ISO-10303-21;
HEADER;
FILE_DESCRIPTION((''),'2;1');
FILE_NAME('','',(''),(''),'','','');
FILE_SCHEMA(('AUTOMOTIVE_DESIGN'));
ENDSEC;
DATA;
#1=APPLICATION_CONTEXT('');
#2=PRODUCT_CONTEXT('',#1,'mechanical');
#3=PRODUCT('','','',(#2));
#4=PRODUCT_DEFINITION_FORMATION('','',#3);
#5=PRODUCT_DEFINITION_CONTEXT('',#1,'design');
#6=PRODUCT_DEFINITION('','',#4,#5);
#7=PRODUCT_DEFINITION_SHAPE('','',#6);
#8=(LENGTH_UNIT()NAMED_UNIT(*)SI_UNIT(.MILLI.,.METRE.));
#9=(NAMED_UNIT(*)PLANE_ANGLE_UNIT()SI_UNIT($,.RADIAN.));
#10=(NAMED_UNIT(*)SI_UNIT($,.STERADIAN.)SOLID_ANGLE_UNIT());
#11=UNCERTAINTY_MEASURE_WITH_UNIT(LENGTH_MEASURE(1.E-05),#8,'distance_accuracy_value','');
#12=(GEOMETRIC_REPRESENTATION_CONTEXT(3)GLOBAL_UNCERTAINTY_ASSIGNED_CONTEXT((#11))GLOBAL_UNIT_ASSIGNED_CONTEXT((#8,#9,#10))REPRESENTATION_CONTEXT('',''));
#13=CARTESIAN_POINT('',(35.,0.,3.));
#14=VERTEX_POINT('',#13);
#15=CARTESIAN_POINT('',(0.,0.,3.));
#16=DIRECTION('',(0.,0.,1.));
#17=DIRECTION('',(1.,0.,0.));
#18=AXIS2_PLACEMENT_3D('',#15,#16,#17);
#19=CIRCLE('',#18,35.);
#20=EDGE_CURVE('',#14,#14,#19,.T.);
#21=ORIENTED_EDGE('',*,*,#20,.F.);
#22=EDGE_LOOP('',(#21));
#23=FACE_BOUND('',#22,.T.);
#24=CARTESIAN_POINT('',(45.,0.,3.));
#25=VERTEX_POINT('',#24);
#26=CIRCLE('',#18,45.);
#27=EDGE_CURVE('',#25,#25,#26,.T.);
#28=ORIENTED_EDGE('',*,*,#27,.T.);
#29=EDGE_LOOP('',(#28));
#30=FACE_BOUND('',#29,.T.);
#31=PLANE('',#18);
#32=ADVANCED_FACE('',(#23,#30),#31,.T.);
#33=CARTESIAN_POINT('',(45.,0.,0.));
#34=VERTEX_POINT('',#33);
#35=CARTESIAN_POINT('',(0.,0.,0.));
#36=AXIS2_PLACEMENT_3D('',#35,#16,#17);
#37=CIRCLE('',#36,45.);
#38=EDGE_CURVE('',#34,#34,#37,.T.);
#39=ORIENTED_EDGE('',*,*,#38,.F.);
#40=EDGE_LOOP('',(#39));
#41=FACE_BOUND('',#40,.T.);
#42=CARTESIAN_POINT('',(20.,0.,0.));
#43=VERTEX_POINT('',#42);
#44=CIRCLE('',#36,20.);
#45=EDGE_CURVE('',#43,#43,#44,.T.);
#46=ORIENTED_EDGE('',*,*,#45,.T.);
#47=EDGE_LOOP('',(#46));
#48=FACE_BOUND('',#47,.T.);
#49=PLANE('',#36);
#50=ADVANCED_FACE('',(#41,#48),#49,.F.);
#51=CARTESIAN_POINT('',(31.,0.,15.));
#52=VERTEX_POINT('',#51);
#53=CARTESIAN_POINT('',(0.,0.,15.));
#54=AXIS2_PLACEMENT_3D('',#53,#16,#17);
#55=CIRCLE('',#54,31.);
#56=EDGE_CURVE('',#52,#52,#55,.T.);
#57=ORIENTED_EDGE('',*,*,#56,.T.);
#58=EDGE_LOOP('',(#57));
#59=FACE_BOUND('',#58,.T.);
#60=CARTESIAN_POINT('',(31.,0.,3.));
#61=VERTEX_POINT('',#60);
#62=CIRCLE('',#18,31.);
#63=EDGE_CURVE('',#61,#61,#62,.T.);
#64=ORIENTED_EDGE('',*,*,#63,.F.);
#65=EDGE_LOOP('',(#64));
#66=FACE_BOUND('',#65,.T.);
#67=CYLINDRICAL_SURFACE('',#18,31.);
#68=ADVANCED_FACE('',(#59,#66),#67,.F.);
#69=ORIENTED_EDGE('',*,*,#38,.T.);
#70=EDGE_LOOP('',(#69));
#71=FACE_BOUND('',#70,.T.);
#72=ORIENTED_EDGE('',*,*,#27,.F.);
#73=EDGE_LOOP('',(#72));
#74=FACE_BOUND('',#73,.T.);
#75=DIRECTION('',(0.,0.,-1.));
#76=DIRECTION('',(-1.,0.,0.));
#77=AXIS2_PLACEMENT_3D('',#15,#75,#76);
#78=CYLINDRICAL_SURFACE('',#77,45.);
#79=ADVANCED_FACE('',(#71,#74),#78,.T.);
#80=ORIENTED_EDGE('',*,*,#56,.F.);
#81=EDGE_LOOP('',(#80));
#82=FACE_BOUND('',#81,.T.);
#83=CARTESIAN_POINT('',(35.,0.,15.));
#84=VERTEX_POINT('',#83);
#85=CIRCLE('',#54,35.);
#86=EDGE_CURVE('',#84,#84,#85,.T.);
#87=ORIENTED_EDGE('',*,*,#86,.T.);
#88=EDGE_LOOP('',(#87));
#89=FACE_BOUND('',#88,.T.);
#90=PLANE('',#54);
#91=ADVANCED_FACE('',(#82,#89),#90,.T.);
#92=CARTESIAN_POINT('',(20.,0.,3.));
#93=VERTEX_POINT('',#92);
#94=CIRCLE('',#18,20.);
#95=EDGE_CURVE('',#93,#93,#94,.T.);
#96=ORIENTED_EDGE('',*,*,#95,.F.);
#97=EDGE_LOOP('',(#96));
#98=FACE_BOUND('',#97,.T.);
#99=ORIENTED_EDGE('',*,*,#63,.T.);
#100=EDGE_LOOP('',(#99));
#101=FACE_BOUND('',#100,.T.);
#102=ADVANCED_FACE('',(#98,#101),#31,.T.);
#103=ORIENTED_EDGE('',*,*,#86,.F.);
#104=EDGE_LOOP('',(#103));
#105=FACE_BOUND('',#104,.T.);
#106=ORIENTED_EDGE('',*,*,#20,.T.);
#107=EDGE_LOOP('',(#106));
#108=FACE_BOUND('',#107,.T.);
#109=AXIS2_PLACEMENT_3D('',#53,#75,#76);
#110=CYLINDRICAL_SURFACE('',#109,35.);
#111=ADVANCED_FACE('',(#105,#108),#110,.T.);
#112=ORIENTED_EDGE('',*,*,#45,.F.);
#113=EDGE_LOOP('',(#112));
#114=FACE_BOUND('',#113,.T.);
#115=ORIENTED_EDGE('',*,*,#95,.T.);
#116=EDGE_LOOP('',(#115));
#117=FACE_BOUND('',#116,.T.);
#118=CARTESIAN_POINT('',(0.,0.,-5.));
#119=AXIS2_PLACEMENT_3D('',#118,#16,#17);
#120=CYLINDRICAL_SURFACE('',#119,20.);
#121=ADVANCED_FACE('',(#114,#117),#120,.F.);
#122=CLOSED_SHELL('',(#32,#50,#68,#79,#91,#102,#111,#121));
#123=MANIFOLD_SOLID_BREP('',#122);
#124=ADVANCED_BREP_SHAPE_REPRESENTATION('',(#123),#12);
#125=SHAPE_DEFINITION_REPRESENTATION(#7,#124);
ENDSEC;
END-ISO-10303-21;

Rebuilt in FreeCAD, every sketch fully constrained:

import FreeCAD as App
import Part
import Sketcher
from FreeCAD import Vector

doc = App.newDocument("Part")
body = doc.addObject("PartDesign::Body", "Body")

# Sketch on XY plane
sketch1 = body.newObject("Sketcher::SketchObject", "Sketch")
sketch1.AttachmentSupport = (doc.getObject("XY_Plane"), [""])
sketch1.MapMode = "FlatFace"
sketch1.addGeometry(Part.Circle(Vector(0, 0, 0), Vector(0, 0, 1), 45), False)
sketch1.addConstraint([
    Sketcher.Constraint("Coincident", 0, 3, -1, 1),
    Sketcher.Constraint("Diameter", 0, 90.0),
])
pad1 = body.newObject("PartDesign::Pad", "Pad")
pad1.Profile = sketch1
pad1.Length = 3

# Sketch on XY plane
sketch2 = body.newObject("Sketcher::SketchObject", "Sketch001")
sketch2.AttachmentSupport = (doc.getObject("XY_Plane"), [""])
sketch2.MapMode = "FlatFace"
sketch2.AttachmentOffset = App.Placement(Vector(0, 0, 3), App.Rotation())
sketch2.addGeometry(Part.Circle(Vector(0, 0, 0), Vector(0, 0, 1), 35), False)
sketch2.addConstraint([
    Sketcher.Constraint("Coincident", 0, 3, -1, 1),
    Sketcher.Constraint("Diameter", 0, 70.0),
])
pad2 = body.newObject("PartDesign::Pad", "Pad001")
pad2.Profile = sketch2
pad2.Length = 12

# Sketch on XY plane
sketch3 = body.newObject("Sketcher::SketchObject", "Sketch002")
sketch3.AttachmentSupport = (doc.getObject("XY_Plane"), [""])
sketch3.MapMode = "FlatFace"
sketch3.AttachmentOffset = App.Placement(Vector(0, 0, 15), App.Rotation())
sketch3.addGeometry(Part.Circle(Vector(0, 0, 0), Vector(0, 0, 1), 31), False)
sketch3.addConstraint([
    Sketcher.Constraint("Coincident", 0, 3, -1, 1),
    Sketcher.Constraint("Diameter", 0, 62.0),
])
pocket1 = body.newObject("PartDesign::Pocket", "Pocket")
pocket1.Profile = sketch3
pocket1.Length = 12

# Sketch on XY plane
sketch4 = body.newObject("Sketcher::SketchObject", "Sketch003")
sketch4.AttachmentSupport = (doc.getObject("XY_Plane"), [""])
sketch4.MapMode = "FlatFace"
sketch4.AttachmentOffset = App.Placement(Vector(0, 0, 3), App.Rotation())
sketch4.addGeometry(Part.Circle(Vector(0, 0, 0), Vector(0, 0, 1), 20), False)
sketch4.addConstraint([
    Sketcher.Constraint("Coincident", 0, 3, -1, 1),
    Sketcher.Constraint("Diameter", 0, 40.0),
])
pocket2 = body.newObject("PartDesign::Pocket", "Pocket001")
pocket2.Profile = sketch4
pocket2.Length = 8

doc.recompute()
